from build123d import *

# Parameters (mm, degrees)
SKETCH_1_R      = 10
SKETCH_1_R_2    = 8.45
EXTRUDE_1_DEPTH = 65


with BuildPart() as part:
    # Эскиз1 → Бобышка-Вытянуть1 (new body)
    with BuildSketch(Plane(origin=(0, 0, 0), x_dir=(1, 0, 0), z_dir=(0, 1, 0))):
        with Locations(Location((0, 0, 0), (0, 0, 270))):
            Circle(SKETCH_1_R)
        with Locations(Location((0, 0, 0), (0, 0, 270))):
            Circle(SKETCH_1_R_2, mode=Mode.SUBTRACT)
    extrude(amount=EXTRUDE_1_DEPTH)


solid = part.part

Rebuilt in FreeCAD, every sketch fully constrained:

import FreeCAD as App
import Part
import Sketcher
Q = App.Units.Quantity

doc = App.newDocument("Part")
params = doc.addObject("Spreadsheet::Sheet", "Params")
for row, (alias, value) in enumerate([
    ("sketch1_diameter", "20 mm"),
    ("sketch1_diameter2", "16.9 mm"),
    ("pad1_length", "65 mm"),
], start=1):
    params.set(f"A{row}", alias)
    params.set(f"B{row}", "=" + value)
    params.setAlias(f"B{row}", alias)

body = doc.addObject("PartDesign::Body", "Body")

# Sketch on XZ plane
sketch1 = body.newObject("Sketcher::SketchObject", "Sketch")
sketch1.AttachmentSupport = (doc.getObject("XZ_Plane"), [""])
sketch1.MapMode = "FlatFace"
sketch1.addGeometry([
    Part.Circle(App.Vector(0, 0, 0), App.Vector(0, 0, 1), 10),
    Part.Circle(App.Vector(0, 0, 0), App.Vector(0, 0, 1), 8),
], False)
sketch1.addConstraint([
    Sketcher.Constraint("Coincident", 0, 3, -1, 1),
    Sketcher.Constraint("Coincident", 1, 3, -1, 1),
    Sketcher.Constraint("Diameter", 0, Q("20 mm")),
    Sketcher.Constraint("Diameter", 1, Q("16.9 mm")),
])
sketch1.setExpression("Constraints[2]", "Params.sketch1_diameter")
sketch1.setExpression("Constraints[3]", "Params.sketch1_diameter2")
pad1 = body.newObject("PartDesign::Pad", "Pad")
pad1.Profile = sketch1
pad1.setExpression("Length", "Params.pad1_length")
pad1.Reversed = True

doc.recompute()
